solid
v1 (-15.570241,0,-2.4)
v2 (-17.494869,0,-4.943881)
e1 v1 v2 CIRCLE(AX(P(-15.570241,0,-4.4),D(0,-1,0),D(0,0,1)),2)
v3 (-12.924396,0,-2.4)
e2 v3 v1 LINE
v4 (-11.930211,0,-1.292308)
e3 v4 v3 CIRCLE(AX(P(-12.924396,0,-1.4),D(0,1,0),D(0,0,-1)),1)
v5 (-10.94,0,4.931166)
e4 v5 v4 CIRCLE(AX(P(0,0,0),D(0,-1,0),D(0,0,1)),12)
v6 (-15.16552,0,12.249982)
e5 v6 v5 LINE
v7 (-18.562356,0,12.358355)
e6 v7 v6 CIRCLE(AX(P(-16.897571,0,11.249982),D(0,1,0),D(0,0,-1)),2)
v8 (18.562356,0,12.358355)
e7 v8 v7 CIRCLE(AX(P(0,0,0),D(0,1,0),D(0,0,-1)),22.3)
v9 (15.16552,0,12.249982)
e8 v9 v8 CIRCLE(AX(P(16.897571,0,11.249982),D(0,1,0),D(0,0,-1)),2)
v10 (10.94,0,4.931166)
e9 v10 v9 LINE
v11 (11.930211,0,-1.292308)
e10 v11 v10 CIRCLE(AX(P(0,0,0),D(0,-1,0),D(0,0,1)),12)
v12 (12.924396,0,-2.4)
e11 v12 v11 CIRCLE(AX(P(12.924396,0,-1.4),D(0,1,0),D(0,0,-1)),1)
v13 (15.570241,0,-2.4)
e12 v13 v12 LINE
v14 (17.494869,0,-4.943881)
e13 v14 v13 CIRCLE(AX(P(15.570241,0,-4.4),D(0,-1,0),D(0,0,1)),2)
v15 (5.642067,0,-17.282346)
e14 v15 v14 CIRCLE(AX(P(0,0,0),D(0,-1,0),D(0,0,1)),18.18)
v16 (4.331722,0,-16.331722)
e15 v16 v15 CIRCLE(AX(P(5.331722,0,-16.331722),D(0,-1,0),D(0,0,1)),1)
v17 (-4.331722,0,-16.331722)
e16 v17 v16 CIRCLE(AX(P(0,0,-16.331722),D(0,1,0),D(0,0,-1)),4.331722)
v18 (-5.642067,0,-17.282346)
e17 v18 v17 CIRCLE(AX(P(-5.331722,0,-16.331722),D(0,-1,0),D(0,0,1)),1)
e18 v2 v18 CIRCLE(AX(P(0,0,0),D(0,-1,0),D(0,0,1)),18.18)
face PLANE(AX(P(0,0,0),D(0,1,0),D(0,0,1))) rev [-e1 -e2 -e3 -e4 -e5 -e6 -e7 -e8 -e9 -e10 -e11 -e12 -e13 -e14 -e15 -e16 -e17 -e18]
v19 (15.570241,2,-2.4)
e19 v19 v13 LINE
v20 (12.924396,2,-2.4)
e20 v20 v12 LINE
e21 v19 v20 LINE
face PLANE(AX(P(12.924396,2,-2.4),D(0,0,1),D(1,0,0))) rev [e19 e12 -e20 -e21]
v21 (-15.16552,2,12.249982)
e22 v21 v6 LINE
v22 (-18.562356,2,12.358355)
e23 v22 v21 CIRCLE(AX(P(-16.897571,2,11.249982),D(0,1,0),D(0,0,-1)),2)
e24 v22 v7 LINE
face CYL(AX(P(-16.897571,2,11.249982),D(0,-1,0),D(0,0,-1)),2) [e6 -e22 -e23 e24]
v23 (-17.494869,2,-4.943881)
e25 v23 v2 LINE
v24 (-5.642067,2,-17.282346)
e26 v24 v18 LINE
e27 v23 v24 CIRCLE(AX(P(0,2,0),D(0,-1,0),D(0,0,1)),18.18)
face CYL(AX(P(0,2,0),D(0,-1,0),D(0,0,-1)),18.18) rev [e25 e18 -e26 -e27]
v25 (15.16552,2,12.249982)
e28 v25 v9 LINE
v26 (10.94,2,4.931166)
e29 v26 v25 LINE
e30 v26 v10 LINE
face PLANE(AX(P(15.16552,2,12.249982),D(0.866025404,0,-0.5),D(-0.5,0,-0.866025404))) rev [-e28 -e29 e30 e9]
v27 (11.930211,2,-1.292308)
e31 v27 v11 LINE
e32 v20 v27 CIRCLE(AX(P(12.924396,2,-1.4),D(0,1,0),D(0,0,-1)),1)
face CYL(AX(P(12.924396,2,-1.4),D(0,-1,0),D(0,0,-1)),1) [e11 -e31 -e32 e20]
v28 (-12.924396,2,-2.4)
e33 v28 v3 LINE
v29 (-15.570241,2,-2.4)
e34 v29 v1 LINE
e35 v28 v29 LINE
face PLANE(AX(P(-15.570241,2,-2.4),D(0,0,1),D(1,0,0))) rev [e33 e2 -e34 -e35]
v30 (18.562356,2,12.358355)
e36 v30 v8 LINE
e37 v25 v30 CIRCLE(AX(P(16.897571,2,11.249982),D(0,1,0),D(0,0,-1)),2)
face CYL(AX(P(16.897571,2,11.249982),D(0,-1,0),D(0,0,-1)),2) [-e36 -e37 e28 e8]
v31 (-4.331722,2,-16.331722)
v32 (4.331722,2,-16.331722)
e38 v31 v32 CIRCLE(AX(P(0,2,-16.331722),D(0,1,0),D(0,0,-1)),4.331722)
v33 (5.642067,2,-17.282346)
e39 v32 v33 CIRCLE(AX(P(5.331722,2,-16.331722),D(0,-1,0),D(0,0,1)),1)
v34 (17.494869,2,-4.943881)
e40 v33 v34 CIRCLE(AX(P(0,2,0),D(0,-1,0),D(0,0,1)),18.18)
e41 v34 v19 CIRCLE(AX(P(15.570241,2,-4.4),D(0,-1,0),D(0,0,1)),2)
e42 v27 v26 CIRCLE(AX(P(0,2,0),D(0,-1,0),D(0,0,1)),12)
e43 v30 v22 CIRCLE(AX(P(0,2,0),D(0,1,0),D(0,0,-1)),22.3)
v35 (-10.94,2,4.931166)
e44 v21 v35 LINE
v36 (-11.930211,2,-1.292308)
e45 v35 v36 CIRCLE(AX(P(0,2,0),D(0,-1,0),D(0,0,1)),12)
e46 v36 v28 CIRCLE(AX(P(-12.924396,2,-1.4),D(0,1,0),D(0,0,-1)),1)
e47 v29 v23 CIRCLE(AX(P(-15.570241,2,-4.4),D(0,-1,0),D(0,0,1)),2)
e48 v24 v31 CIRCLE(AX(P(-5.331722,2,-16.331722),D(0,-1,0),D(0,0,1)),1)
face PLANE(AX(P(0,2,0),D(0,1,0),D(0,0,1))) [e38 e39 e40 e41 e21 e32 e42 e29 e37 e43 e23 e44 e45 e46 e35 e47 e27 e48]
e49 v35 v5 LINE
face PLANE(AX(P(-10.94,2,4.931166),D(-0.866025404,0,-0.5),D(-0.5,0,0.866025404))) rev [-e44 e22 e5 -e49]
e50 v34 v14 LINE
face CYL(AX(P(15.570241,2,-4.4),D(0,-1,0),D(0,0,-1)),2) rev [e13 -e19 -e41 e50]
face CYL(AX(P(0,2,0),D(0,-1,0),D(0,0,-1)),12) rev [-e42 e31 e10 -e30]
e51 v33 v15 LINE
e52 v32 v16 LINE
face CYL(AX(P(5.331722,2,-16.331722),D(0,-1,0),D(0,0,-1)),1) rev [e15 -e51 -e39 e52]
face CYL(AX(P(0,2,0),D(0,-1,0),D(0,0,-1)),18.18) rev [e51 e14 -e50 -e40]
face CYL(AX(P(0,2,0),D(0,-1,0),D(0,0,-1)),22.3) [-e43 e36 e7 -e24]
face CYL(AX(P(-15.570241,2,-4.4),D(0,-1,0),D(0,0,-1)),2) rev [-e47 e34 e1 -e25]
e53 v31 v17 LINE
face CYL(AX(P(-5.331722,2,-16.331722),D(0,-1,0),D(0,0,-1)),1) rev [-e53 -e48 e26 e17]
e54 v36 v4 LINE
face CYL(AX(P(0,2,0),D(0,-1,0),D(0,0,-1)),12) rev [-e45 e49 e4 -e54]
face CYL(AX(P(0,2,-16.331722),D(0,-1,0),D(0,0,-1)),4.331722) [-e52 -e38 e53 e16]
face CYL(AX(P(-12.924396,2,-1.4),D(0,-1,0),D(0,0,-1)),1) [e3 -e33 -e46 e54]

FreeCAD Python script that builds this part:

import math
import FreeCAD as App
import Part
import Sketcher

V = App.Vector
Q = App.Units.Quantity

doc = App.newDocument("Part")
body = doc.addObject("PartDesign::Body", "Body")

# Sketch on XZ plane
sketch1 = doc.addObject("Sketcher::SketchObject", "Sketch")
body.addObject(sketch1)
sketch1.AttachmentSupport = (doc.XZ_Plane, [""])
sketch1.MapMode = "FlatFace"
sketch1.addGeometry(Part.LineSegment(V(15.6, -2.4, 0), V(12.9, -2.4, 0)), False)
sketch1.addGeometry(Part.ArcOfCircle(Part.Circle(V(12.9, -1.4, 0), V(0, 0, 1), 1), math.radians(174), math.radians(270)), False)
sketch1.addGeometry(Part.ArcOfCircle(Part.Circle(V(0, 0, 0), V(0, 0, 1), 12), math.radians(-6), math.radians(24)), False)
sketch1.addGeometry(Part.LineSegment(V(10.9, 4.9, 0), V(15.2, 12.2, 0)), False)
sketch1.addGeometry(Part.ArcOfCircle(Part.Circle(V(16.9, 11.2, 0), V(0, 0, 1), 2), math.radians(34), math.radians(150)), False)
sketch1.addGeometry(Part.ArcOfCircle(Part.Circle(V(0, 0, 0), V(0, 0, 1), 22.3), math.radians(146), math.radians(394)), False)
sketch1.addGeometry(Part.ArcOfCircle(Part.Circle(V(-16.9, 11.2, 0), V(0, 0, 1), 2), math.radians(30), math.radians(146)), False)
sketch1.addGeometry(Part.LineSegment(V(-15.2, 12.2, 0), V(-10.9, 4.9, 0)), False)
sketch1.addGeometry(Part.ArcOfCircle(Part.Circle(V(0, 0, 0), V(0, 0, 1), 12), math.radians(156), math.radians(186)), False)
sketch1.addGeometry(Part.ArcOfCircle(Part.Circle(V(-12.9, -1.4, 0), V(0, 0, 1), 1), math.radians(-90), math.radians(6)), False)
sketch1.addGeometry(Part.LineSegment(V(-12.9, -2.4, 0), V(-15.6, -2.4, 0)), False)
sketch1.addGeometry(Part.ArcOfCircle(Part.Circle(V(-15.6, -4.4, 0), V(0, 0, 1), 2), math.radians(90), math.radians(196)), False)
sketch1.addGeometry(Part.ArcOfCircle(Part.Circle(V(0, 0, 0), V(0, 0, 1), 18.2), math.radians(-164), math.radians(-108)), False)
sketch1.addGeometry(Part.ArcOfCircle(Part.Circle(V(-5.3, -16.3, 0), V(0, 0, 1), 1), math.radians(-108), math.radians(0)), False)
sketch1.addGeometry(Part.ArcOfCircle(Part.Circle(V(0, -16.3, 0), V(0, 0, 1), 4.3), math.radians(0), math.radians(180)), False)
sketch1.addGeometry(Part.ArcOfCircle(Part.Circle(V(5.3, -16.3, 0), V(0, 0, 1), 1), math.radians(180), math.radians(288)), False)
sketch1.addGeometry(Part.ArcOfCircle(Part.Circle(V(0, 0, 0), V(0, 0, 1), 18.2), math.radians(-72), math.radians(-16)), False)
sketch1.addGeometry(Part.ArcOfCircle(Part.Circle(V(15.6, -4.4, 0), V(0, 0, 1), 2), math.radians(-16), math.radians(90)), False)
sketch1.addConstraint(Sketcher.Constraint("Tangent", 0, 2, 1, 2))
sketch1.addConstraint(Sketcher.Constraint("Tangent", 1, 1, 2, 1))
sketch1.addConstraint(Sketcher.Constraint("Coincident", 2, 2, 3, 1))
sketch1.addConstraint(Sketcher.Constraint("Tangent", 3, 2, 4, 2))
sketch1.addConstraint(Sketcher.Constraint("Tangent", 4, 1, 5, 2))
sketch1.addConstraint(Sketcher.Constraint("Tangent", 5, 1, 6, 2))
sketch1.addConstraint(Sketcher.Constraint("Tangent", 6, 1, 7, 1))
sketch1.addConstraint(Sketcher.Constraint("Coincident", 7, 2, 8, 1))
sketch1.addConstraint(Sketcher.Constraint("Tangent", 8, 2, 9, 2))
sketch1.addConstraint(Sketcher.Constraint("Tangent", 9, 1, 10, 1))
sketch1.addConstraint(Sketcher.Constraint("Tangent", 10, 2, 11, 1))
sketch1.addConstraint(Sketcher.Constraint("Tangent", 11, 2, 12, 1))
sketch1.addConstraint(Sketcher.Constraint("Tangent", 12, 2, 13, 1))
sketch1.addConstraint(Sketcher.Constraint("Tangent", 13, 2, 14, 2))
sketch1.addConstraint(Sketcher.Constraint("Tangent", 14, 1, 15, 1))
sketch1.addConstraint(Sketcher.Constraint("Tangent", 15, 2, 16, 1))
sketch1.addConstraint(Sketcher.Constraint("Tangent", 16, 2, 17, 1))
sketch1.addConstraint(Sketcher.Constraint("Tangent", 17, 2, 0, 1))
sketch1.addConstraint(Sketcher.Constraint("Horizontal", 0))
sketch1.addConstraint(Sketcher.Constraint("Horizontal", 10))
sketch1.addConstraint(Sketcher.Constraint("Coincident", 2, 3, -1, 1))
sketch1.addConstraint(Sketcher.Constraint("Coincident", 5, 3, -1, 1))
sketch1.addConstraint(Sketcher.Constraint("Coincident", 8, 3, -1, 1))
sketch1.addConstraint(Sketcher.Constraint("Coincident", 12, 3, -1, 1))
sketch1.addConstraint(Sketcher.Constraint("Coincident", 16, 3, -1, 1))
sketch1.addConstraint(Sketcher.Constraint("Equal", 4, 6))
sketch1.addConstraint(Sketcher.Constraint("Equal", 2, 8))
sketch1.addConstraint(Sketcher.Constraint("Equal", 1, 9))
sketch1.addConstraint(Sketcher.Constraint("Equal", 6, 11))
sketch1.addConstraint(Sketcher.Constraint("Equal", 9, 13))
sketch1.addConstraint(Sketcher.Constraint("Equal", 13, 15))
sketch1.addConstraint(Sketcher.Constraint("Equal", 12, 16))
sketch1.addConstraint(Sketcher.Constraint("Equal", 11, 17))
sketch1.addConstraint(Sketcher.Constraint("Symmetric", 3, 2, 6, 1, -2))
sketch1.addConstraint(Sketcher.Constraint("PointOnObject", 14, 3, -2))
sketch1.addConstraint(Sketcher.Constraint("Horizontal", 1, 3, 9, 3))
sketch1.addConstraint(Sketcher.Constraint("Horizontal", 13, 3, 14, 3))
sketch1.addConstraint(Sketcher.Constraint("Radius", 1, 1.0))
sketch1.addConstraint(Sketcher.Constraint("Radius", 2, 12.0))
sketch1.addConstraint(Sketcher.Constraint("Radius", 4, 2.0))
sketch1.addConstraint(Sketcher.Constraint("Radius", 5, 22.3))
sketch1.addConstraint(Sketcher.Constraint("Angle", 3, Q("60 deg")))
sketch1.addConstraint(Sketcher.Constraint("Radius", 12, 18.18))
sketch1.addConstraint(Sketcher.Constraint("DistanceY", 1, 3, -1, 1, 1.4))
sketch1.addConstraint(Sketcher.Constraint("DistanceX", -1, 1, 2, 2, 10.94))
sketch1.addConstraint(Sketcher.Constraint("Radius", 14, 4.331722))
pad1 = doc.addObject("PartDesign::Pad", "Pad")
body.addObject(pad1)
pad1.Profile = sketch1
pad1.Length = 2
pad1.Reversed = True

doc.recompute()
